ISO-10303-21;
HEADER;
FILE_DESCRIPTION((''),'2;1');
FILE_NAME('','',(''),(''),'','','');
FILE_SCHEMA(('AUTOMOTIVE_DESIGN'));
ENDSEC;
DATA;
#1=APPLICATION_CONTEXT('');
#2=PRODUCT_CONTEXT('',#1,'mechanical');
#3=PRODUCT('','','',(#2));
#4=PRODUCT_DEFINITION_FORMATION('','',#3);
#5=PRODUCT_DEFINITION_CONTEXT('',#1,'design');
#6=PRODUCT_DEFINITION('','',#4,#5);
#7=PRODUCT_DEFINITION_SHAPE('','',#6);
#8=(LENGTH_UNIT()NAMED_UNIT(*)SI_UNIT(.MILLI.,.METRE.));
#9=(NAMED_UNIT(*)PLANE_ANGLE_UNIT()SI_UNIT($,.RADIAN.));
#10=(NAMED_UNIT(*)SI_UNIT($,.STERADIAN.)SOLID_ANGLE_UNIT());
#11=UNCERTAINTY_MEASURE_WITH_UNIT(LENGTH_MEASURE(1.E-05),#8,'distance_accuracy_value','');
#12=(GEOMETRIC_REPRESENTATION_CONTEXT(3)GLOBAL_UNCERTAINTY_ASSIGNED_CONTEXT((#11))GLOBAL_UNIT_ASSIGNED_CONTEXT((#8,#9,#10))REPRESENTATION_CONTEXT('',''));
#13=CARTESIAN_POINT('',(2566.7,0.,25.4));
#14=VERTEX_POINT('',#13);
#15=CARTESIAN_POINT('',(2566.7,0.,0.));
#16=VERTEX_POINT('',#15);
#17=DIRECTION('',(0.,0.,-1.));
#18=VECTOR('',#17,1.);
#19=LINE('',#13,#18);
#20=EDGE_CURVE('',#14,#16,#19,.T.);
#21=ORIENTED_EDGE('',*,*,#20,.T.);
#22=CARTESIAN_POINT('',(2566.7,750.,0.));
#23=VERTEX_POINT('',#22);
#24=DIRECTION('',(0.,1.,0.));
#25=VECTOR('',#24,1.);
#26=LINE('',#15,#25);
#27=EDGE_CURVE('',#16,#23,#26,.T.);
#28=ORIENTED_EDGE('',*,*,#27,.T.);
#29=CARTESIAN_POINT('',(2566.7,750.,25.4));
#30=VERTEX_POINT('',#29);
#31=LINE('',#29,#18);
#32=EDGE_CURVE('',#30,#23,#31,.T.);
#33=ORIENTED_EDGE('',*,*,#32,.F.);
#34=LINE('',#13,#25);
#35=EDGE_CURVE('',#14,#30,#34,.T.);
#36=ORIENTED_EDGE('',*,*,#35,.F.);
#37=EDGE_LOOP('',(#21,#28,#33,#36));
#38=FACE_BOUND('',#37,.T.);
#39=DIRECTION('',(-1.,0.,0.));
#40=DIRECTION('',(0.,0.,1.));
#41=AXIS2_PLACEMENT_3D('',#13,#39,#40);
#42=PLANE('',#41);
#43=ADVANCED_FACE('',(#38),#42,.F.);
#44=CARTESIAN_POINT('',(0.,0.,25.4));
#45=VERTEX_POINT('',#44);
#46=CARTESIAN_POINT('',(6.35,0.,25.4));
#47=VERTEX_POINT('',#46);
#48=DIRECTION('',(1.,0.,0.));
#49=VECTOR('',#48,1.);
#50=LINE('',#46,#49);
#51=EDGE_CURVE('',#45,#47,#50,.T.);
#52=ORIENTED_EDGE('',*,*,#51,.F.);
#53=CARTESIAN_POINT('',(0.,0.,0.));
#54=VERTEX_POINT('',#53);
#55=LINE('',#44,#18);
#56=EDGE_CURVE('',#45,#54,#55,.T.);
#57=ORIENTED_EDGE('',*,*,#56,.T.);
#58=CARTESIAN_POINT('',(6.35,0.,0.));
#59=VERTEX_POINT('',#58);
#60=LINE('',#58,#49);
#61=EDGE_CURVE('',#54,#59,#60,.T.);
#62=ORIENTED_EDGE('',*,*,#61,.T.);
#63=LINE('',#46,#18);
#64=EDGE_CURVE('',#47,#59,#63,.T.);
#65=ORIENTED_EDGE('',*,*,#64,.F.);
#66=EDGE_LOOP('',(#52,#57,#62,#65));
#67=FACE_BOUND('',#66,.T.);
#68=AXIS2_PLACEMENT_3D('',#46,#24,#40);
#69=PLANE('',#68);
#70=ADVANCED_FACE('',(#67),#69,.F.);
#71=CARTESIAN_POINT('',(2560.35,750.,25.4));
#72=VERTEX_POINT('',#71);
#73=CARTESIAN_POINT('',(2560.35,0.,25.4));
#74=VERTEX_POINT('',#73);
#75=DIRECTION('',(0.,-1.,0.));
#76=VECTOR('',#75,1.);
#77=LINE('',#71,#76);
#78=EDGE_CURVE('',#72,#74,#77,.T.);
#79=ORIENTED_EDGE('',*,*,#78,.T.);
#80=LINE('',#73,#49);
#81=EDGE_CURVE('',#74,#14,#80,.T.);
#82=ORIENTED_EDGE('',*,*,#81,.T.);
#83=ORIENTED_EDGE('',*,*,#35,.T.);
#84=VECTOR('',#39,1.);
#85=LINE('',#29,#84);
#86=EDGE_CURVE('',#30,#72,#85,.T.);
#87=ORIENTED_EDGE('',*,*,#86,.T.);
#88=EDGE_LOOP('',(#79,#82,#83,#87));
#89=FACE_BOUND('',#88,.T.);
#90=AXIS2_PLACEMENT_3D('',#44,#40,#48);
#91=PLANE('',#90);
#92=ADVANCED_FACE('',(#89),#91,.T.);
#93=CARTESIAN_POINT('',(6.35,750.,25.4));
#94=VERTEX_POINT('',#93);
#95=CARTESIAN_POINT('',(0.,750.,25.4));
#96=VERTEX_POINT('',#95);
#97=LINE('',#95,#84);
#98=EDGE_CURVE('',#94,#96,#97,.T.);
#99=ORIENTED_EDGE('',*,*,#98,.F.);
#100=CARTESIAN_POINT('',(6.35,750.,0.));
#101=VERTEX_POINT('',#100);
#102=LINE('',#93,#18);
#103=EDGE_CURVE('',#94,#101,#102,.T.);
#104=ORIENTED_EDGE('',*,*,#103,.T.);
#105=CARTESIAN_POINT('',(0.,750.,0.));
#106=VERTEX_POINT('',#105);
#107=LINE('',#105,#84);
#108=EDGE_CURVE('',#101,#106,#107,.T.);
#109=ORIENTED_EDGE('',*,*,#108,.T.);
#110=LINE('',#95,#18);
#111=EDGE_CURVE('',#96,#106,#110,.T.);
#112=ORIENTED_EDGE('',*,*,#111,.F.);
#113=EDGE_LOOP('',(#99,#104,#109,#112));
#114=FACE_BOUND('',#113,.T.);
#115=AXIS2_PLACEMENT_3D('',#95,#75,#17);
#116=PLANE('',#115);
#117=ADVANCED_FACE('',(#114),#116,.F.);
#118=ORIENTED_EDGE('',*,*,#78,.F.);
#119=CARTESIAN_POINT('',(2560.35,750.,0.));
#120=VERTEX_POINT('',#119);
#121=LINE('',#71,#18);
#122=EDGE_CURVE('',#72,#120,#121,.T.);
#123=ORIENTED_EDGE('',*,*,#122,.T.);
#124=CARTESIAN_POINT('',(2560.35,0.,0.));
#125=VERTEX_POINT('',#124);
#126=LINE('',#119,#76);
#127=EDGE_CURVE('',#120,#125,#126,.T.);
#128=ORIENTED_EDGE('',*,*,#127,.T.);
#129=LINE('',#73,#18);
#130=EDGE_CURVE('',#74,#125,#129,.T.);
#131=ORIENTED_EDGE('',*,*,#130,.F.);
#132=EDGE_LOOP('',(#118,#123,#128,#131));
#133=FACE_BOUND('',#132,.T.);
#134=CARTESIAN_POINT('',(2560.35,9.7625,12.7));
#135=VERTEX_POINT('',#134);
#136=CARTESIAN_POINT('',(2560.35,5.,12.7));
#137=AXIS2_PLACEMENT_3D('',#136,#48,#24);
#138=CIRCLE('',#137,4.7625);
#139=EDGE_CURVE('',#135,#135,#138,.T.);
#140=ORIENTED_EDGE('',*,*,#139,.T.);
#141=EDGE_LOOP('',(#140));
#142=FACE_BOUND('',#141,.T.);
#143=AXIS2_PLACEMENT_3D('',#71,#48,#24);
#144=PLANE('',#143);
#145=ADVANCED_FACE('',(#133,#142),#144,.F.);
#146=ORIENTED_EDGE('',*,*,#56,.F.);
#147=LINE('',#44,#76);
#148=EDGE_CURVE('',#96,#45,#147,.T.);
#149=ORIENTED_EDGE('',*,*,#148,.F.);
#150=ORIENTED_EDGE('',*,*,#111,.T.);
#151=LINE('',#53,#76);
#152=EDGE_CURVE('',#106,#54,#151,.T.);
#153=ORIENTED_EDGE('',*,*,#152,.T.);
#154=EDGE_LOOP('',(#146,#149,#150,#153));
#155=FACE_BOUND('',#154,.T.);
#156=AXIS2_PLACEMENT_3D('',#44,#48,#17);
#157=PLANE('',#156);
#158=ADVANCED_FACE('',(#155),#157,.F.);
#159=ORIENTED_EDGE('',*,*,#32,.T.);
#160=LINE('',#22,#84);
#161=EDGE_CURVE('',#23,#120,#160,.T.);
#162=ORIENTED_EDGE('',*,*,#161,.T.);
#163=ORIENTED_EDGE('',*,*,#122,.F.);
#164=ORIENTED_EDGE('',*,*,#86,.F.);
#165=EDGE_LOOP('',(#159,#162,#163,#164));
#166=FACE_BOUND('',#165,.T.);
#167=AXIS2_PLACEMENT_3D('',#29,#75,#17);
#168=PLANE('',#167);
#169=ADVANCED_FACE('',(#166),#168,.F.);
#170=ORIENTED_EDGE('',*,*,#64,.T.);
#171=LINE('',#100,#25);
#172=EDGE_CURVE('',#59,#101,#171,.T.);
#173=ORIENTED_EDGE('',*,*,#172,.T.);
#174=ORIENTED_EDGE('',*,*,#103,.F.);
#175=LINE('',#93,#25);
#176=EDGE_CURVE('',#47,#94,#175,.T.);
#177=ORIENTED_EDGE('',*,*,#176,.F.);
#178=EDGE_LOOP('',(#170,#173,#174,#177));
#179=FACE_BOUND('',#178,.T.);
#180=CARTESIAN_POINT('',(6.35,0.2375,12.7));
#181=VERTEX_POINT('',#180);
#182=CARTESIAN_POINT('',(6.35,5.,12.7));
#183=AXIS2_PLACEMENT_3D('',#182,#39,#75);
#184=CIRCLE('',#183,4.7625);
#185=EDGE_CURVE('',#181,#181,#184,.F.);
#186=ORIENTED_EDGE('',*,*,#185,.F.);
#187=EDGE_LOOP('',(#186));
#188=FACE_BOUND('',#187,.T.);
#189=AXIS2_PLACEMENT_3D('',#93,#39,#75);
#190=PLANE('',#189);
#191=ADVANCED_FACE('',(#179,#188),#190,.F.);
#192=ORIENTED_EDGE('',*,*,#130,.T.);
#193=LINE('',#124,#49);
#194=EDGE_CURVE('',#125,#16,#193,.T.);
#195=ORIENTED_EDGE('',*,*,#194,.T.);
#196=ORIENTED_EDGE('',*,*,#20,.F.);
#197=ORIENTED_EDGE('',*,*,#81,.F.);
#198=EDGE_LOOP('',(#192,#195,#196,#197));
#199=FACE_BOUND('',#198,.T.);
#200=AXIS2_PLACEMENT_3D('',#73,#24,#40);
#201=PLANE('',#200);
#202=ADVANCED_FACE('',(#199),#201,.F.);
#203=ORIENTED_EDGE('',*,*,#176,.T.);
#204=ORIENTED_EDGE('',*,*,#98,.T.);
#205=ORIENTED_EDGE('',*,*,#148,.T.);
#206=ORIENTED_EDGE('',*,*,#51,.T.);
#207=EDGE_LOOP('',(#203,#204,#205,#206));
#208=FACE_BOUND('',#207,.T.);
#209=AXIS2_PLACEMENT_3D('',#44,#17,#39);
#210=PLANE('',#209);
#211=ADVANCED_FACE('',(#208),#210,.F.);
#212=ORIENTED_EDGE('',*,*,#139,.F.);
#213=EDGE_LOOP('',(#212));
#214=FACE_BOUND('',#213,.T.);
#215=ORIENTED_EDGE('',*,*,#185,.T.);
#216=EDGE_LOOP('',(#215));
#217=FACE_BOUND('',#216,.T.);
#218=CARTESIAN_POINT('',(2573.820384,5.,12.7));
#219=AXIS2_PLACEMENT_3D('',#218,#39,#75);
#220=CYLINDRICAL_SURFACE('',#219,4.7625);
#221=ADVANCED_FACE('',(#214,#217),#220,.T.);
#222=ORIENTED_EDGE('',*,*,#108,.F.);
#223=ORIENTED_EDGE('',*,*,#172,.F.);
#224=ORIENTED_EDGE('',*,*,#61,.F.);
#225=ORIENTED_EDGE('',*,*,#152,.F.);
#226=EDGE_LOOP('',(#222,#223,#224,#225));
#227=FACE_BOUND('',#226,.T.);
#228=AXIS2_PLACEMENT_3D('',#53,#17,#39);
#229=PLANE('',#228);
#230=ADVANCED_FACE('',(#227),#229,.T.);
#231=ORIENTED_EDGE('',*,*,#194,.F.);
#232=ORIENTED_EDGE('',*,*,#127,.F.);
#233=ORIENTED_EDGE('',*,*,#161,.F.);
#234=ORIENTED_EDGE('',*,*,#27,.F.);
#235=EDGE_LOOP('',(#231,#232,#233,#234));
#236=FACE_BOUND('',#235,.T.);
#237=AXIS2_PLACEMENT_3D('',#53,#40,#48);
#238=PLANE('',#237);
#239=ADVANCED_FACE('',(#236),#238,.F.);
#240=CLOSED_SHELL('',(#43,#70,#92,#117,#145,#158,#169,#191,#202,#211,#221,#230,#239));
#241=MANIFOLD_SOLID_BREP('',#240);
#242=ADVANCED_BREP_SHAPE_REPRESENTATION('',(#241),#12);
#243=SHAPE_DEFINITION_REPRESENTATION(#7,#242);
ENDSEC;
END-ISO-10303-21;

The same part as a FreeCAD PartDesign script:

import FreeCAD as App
import Part
import Sketcher
from FreeCAD import Vector
Q = App.Units.Quantity

doc = App.newDocument("Part")
body = doc.addObject("PartDesign::Body", "Body")

sketch1 = body.newObject("Sketcher::SketchObject", "Sketch")
sketch1.AttachmentSupport = (doc.getObject("XY_Plane"), [""])
sketch1.MapMode = "FlatFace"
sketch1.addGeometry(Part.LineSegment(Vector(0, 750, 0), Vector(0, 0, 0)), False)
sketch1.addGeometry(Part.LineSegment(Vector(0, 0, 0), Vector(6, 0, 0)), False)
sketch1.addGeometry(Part.LineSegment(Vector(6, 0, 0), Vector(6, 750, 0)), False)
sketch1.addGeometry(Part.LineSegment(Vector(6, 750, 0), Vector(0, 750, 0)), False)
sketch1.addConstraint(Sketcher.Constraint("Coincident", 0, 2, 1, 1))
sketch1.addConstraint(Sketcher.Constraint("Coincident", 1, 2, 2, 1))
sketch1.addConstraint(Sketcher.Constraint("Coincident", 2, 2, 3, 1))
sketch1.addConstraint(Sketcher.Constraint("Coincident", 3, 2, 0, 1))
sketch1.addConstraint(Sketcher.Constraint("Vertical", 0))
sketch1.addConstraint(Sketcher.Constraint("Horizontal", 1))
sketch1.addConstraint(Sketcher.Constraint("Vertical", 2))
sketch1.addConstraint(Sketcher.Constraint("Horizontal", 3))
sketch1.addConstraint(Sketcher.Constraint("Coincident", 0, 2, -1, 1))
sketch1.addConstraint(Sketcher.Constraint("DistanceX", 1, 1, 1, 2, Q("0.25 in")))
sketch1.addConstraint(Sketcher.Constraint("DistanceY", 0, 2, 0, 1, Q("750 mm")))
pad1 = body.newObject("PartDesign::Pad", "Pad")
pad1.Profile = sketch1
pad1.Length = Q("1 in")
body2 = doc.addObject("PartDesign::Body", "Body001")

sketch2 = body2.newObject("Sketcher::SketchObject", "Sketch001")
sketch2.AttachmentSupport = (doc.getObject("XY_Plane001"), [""])
sketch2.MapMode = "FlatFace"
sketch2.addGeometry(Part.LineSegment(Vector(2560, 750, 0), Vector(2560, 0, 0)), False)
sketch2.addGeometry(Part.LineSegment(Vector(2560, 0, 0), Vector(2567, 0, 0)), False)
sketch2.addGeometry(Part.LineSegment(Vector(2567, 0, 0), Vector(2567, 750, 0)), False)
sketch2.addGeometry(Part.LineSegment(Vector(2567, 750, 0), Vector(2560, 750, 0)), False)
sketch2.addConstraint(Sketcher.Constraint("Coincident", 0, 2, 1, 1))
sketch2.addConstraint(Sketcher.Constraint("Coincident", 1, 2, 2, 1))
sketch2.addConstraint(Sketcher.Constraint("Coincident", 2, 2, 3, 1))
sketch2.addConstraint(Sketcher.Constraint("Coincident", 3, 2, 0, 1))
sketch2.addConstraint(Sketcher.Constraint("Vertical", 0))
sketch2.addConstraint(Sketcher.Constraint("Horizontal", 1))
sketch2.addConstraint(Sketcher.Constraint("Vertical", 2))
sketch2.addConstraint(Sketcher.Constraint("Horizontal", 3))
sketch2.addConstraint(Sketcher.Constraint("PointOnObject", 0, 2, -1))
sketch2.addConstraint(Sketcher.Constraint("DistanceX", 1, 1, 1, 2, Q("0.25 in")))
sketch2.addConstraint(Sketcher.Constraint("DistanceY", 0, 2, 0, 1, Q("750 mm")))
sketch2.addConstraint(Sketcher.Constraint("DistanceX", -1, 1, 0, 2, Q("2560.35 mm")))
pad2 = body2.newObject("PartDesign::Pad", "Pad001")
pad2.Profile = sketch2
pad2.Length = Q("1 in")
body.AllowCompound = True
doc.recompute()

boolean = body.newObject("PartDesign::Boolean", "Boolean")
boolean.Type = "Fuse"
boolean.addObjects([body2])

sketch3 = body.newObject("Sketcher::SketchObject", "Sketch002")
sketch3.AttachmentSupport = (doc.getObject("YZ_Plane"), [""])
sketch3.MapMode = "FlatFace"
sketch3.AttachmentOffset = App.Placement(Vector(0, 0, 0.25 * 25.4), App.Rotation())
sketch3.addGeometry(Part.Circle(Vector(5, 12.7, 0), Vector(0, 0, 1), 4.8), False)
sketch3.addConstraint(Sketcher.Constraint("Diameter", 0, Q("0.375 in")))
sketch3.addConstraint(Sketcher.Constraint("DistanceY", -1, 1, 0, 3, Q("0.5 in")))
sketch3.addConstraint(Sketcher.Constraint("DistanceX", -1, 1, 0, 3, Q("5 mm")))
pad3 = body.newObject("PartDesign::Pad", "Pad002")
pad3.Profile = sketch3
pad3.Length = 2554

doc.recompute()
